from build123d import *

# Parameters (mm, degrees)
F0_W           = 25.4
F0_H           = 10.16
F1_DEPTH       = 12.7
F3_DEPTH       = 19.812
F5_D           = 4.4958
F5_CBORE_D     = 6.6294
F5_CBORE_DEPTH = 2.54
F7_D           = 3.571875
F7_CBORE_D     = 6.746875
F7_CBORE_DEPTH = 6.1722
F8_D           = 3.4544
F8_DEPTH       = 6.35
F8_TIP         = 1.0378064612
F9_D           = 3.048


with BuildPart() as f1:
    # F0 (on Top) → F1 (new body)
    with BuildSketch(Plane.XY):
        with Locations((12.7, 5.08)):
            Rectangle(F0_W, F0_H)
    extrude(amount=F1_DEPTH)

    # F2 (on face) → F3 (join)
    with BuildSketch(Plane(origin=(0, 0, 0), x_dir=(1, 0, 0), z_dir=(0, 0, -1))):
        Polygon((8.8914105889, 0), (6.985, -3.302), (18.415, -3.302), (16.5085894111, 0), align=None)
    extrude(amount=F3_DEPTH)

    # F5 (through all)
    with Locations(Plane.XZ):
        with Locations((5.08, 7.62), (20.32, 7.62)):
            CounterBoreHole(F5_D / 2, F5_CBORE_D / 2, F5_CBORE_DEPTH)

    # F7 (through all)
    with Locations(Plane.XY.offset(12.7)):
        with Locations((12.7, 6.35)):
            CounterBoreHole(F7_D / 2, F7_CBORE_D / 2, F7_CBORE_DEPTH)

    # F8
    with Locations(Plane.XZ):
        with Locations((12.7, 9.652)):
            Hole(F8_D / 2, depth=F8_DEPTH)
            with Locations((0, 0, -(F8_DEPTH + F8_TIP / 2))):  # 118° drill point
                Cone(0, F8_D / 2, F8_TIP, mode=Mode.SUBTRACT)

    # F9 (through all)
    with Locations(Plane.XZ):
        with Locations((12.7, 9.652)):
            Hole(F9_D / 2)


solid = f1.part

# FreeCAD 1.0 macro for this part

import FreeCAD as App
import Part
import Sketcher
Q = App.Units.Quantity


def add_polygon(sketch, points):
    """Adds a closed chain of lines whose ends are joined by coincident constraints."""
    first, n = sketch.GeometryCount, len(points)
    for a, b in zip(points, points[1:] + points[:1]):
        sketch.addGeometry(Part.LineSegment(App.Vector(*a, 0), App.Vector(*b, 0)), False)
    for i in range(n):
        sketch.addConstraint(Sketcher.Constraint("Coincident", first + i, 2, first + (i + 1) % n, 1))

doc = App.newDocument("Part")
body = doc.addObject("PartDesign::Body", "Body")

# Sketch on XY plane
sketch1 = body.newObject("Sketcher::SketchObject", "Sketch")
sketch1.AttachmentSupport = (doc.getObject("XY_Plane"), [""])
sketch1.MapMode = "FlatFace"
add_polygon(sketch1, [(0, 10), (0, 0), (25, 0), (25, 10)])  # lines 0-3
sketch1.addConstraint(Sketcher.Constraint("Vertical", 0))
sketch1.addConstraint(Sketcher.Constraint("Horizontal", 1))
sketch1.addConstraint(Sketcher.Constraint("Vertical", 2))
sketch1.addConstraint(Sketcher.Constraint("Horizontal", 3))
sketch1.addConstraint(Sketcher.Constraint("Coincident", 0, 2, -1, 1))
sketch1.addConstraint(Sketcher.Constraint("DistanceX", 1, 1, 1, 2, Q("1 in")))
sketch1.addConstraint(Sketcher.Constraint("DistanceY", 0, 2, 0, 1, Q("0.4 in")))
pad1 = body.newObject("PartDesign::Pad", "Pad")
pad1.Profile = sketch1
pad1.Length = Q("0.5 in")

# Sketch on XY plane
sketch2 = body.newObject("Sketcher::SketchObject", "Sketch001")
sketch2.AttachmentSupport = (doc.getObject("XY_Plane"), [""])
sketch2.MapMode = "FlatFace"
add_polygon(sketch2, [(8.9, 0), (7, 3.3), (18.4, 3.3), (16.5, 0)])  # lines 0-3
sketch2.addConstraint(Sketcher.Constraint("Horizontal", 1))
sketch2.addConstraint(Sketcher.Constraint("Horizontal", 3))
sketch2.addConstraint(Sketcher.Constraint("PointOnObject", 2, 2, -1))
sketch2.addConstraint(Sketcher.Constraint("Equal", 0, 2))
sketch2.addConstraint(Sketcher.Constraint("Angle", 0, Q("120 deg")))
sketch2.addConstraint(Sketcher.Constraint("DistanceX", 1, 1, 1, 2, Q("0.45 in")))
sketch2.addConstraint(Sketcher.Constraint("DistanceY", -1, 1, 0, 2, Q("0.13 in")))
sketch2.addConstraint(Sketcher.Constraint("DistanceX", -1, 1, 0, 2, Q("0.275 in")))
pad2 = body.newObject("PartDesign::Pad", "Pad001")
pad2.Profile = sketch2
pad2.Length = Q("0.78 in")
pad2.Reversed = True

# Sketch on XZ plane
sketch3 = body.newObject("Sketcher::SketchObject", "Sketch002")
sketch3.AttachmentSupport = (doc.getObject("XZ_Plane"), [""])
sketch3.MapMode = "FlatFace"
sketch3.addGeometry(Part.Circle(App.Vector(5.1, 7.6, 0), App.Vector(0, 0, 1), 2.2), False)
sketch3.addGeometry(Part.Circle(App.Vector(20.3, 7.6, 0), App.Vector(0, 0, 1), 2.2), False)
sketch3.addConstraint(Sketcher.Constraint("Equal", 0, 1))
sketch3.addConstraint(Sketcher.Constraint("Horizontal", 0, 3, 1, 3))
sketch3.addConstraint(Sketcher.Constraint("Diameter", 0, Q("0.177 in")))
sketch3.addConstraint(Sketcher.Constraint("DistanceX", -1, 1, 0, 3, Q("0.2 in")))
sketch3.addConstraint(Sketcher.Constraint("DistanceY", -1, 1, 0, 3, Q("0.3 in")))
sketch3.addConstraint(Sketcher.Constraint("DistanceX", -1, 1, 1, 3, Q("0.8 in")))
doc.recompute()
hole = body.newObject("PartDesign::Hole", "Hole")
hole.Profile = sketch3
hole.ThreadType = "None"
hole.Diameter = Q("0.177 in")
hole.DepthType = "ThroughAll"
hole.HoleCutType = "Counterbore"
hole.HoleCutDiameter = Q("0.261 in")
hole.HoleCutDepth = Q("0.1 in")

# Sketch on XY plane
sketch4 = body.newObject("Sketcher::SketchObject", "Sketch003")
sketch4.AttachmentSupport = (doc.getObject("XY_Plane"), [""])
sketch4.MapMode = "FlatFace"
sketch4.AttachmentOffset = App.Placement(App.Vector(0, 0, 0.5 * 25.4), App.Rotation())
sketch4.addGeometry(Part.Circle(App.Vector(12.7, 6.3, 0), App.Vector(0, 0, 1), 1.8), False)
sketch4.addConstraint(Sketcher.Constraint("Diameter", 0, Q("0.140625 in")))
sketch4.addConstraint(Sketcher.Constraint("DistanceX", -1, 1, 0, 3, Q("0.5 in")))
sketch4.addConstraint(Sketcher.Constraint("DistanceY", -1, 1, 0, 3, Q("0.25 in")))
doc.recompute()
hole2 = body.newObject("PartDesign::Hole", "Hole001")
hole2.Profile = sketch4
hole2.ThreadType = "None"
hole2.Diameter = Q("0.140625 in")
hole2.DepthType = "ThroughAll"
hole2.HoleCutType = "Counterbore"
hole2.HoleCutDiameter = Q("0.265625 in")
hole2.HoleCutDepth = Q("0.243 in")

# Sketch on XZ plane
sketch5 = body.newObject("Sketcher::SketchObject", "Sketch004")
sketch5.AttachmentSupport = (doc.getObject("XZ_Plane"), [""])
sketch5.MapMode = "FlatFace"
sketch5.addGeometry(Part.Circle(App.Vector(12.7, 9.7, 0), App.Vector(0, 0, 1), 1.7), False)
sketch5.addConstraint(Sketcher.Constraint("Diameter", 0, Q("0.136 in")))
sketch5.addConstraint(Sketcher.Constraint("DistanceX", -1, 1, 0, 3, Q("0.5 in")))
sketch5.addConstraint(Sketcher.Constraint("DistanceY", -1, 1, 0, 3, Q("0.38 in")))
doc.recompute()
hole3 = body.newObject("PartDesign::Hole", "Hole002")
hole3.Profile = sketch5
hole3.ThreadType = "None"
hole3.Diameter = Q("0.136 in")
hole3.DepthType = "Dimension"
hole3.Depth = Q("0.25 in")
hole3.DrillPoint = "Angled"
hole3.DrillPointAngle = 118

# Sketch on XZ plane
sketch6 = body.newObject("Sketcher::SketchObject", "Sketch005")
sketch6.AttachmentSupport = (doc.getObject("XZ_Plane"), [""])
sketch6.MapMode = "FlatFace"
sketch6.addGeometry(Part.Circle(App.Vector(12.7, 9.7, 0), App.Vector(0, 0, 1), 1.5), False)
sketch6.addConstraint(Sketcher.Constraint("Diameter", 0, Q("0.12 in")))
sketch6.addConstraint(Sketcher.Constraint("DistanceX", -1, 1, 0, 3, Q("0.5 in")))
sketch6.addConstraint(Sketcher.Constraint("DistanceY", -1, 1, 0, 3, Q("0.38 in")))
doc.recompute()
hole4 = body.newObject("PartDesign::Hole", "Hole003")
hole4.Profile = sketch6
hole4.ThreadType = "None"
hole4.Diameter = Q("0.12 in")
hole4.DepthType = "ThroughAll"

doc.recompute()
